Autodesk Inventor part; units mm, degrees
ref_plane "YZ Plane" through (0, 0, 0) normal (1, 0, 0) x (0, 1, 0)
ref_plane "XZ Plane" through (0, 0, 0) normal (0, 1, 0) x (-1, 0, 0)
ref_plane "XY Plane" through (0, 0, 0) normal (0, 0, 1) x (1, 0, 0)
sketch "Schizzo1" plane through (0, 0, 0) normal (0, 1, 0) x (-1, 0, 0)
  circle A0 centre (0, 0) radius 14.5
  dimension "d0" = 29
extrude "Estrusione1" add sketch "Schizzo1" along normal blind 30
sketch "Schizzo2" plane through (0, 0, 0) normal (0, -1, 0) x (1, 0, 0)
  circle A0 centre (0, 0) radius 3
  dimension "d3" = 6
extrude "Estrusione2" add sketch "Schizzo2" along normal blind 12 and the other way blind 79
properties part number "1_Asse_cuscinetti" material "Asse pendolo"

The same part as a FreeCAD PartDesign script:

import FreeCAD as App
import Part
import Sketcher

doc = App.newDocument("Part")
body = doc.addObject("PartDesign::Body", "Body")

sketch1 = doc.addObject("Sketcher::SketchObject", "Sketch")
body.addObject(sketch1)
sketch1.AttachmentSupport = (doc.XZ_Plane, [""])
sketch1.MapMode = "FlatFace"
sketch1.addGeometry(Part.Circle(App.Vector(0, 0, 0), App.Vector(0, 0, 1), 14), False)
sketch1.addConstraint([
    Sketcher.Constraint("Coincident", 0, 3, -1, 1),
    Sketcher.Constraint("Diameter", 0, 29.0),
])
pad1 = doc.addObject("PartDesign::Pad", "Pad")
body.addObject(pad1)
pad1.Profile = sketch1
pad1.Length = 30
pad1.Reversed = True

sketch2 = doc.addObject("Sketcher::SketchObject", "Sketch001")
body.addObject(sketch2)
sketch2.AttachmentSupport = (doc.XZ_Plane, [""])
sketch2.MapMode = "FlatFace"
sketch2.addGeometry(Part.Circle(App.Vector(0, 0, 0), App.Vector(0, 0, 1), 3), False)
sketch2.addConstraint([
    Sketcher.Constraint("Coincident", 0, 3, -1, 1),
    Sketcher.Constraint("Diameter", 0, 6.0),
])
pad2 = doc.addObject("PartDesign::Pad", "Pad001")
body.addObject(pad2)
pad2.Profile = sketch2
pad2.Type = "TwoLengths"
pad2.Length = 12
pad2.Length2 = 79

doc.recompute()
